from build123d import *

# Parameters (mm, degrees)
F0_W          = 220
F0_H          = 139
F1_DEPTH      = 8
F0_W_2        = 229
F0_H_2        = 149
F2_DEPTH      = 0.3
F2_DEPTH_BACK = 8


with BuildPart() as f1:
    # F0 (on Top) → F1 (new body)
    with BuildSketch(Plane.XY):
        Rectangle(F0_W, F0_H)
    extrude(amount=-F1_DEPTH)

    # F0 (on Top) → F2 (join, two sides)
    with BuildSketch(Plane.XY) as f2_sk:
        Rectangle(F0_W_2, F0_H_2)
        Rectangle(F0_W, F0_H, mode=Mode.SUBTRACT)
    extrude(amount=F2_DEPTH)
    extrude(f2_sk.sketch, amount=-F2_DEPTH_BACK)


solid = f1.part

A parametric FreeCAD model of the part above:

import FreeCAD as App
import Part
import Sketcher

V = App.Vector
Q = App.Units.Quantity


def add_polygon(sketch, points):
    """Adds a closed chain of lines whose ends are joined by coincident constraints."""
    first, n = sketch.GeometryCount, len(points)
    for a, b in zip(points, points[1:] + points[:1]):
        sketch.addGeometry(Part.LineSegment(App.Vector(*a, 0), App.Vector(*b, 0)), False)
    for i in range(n):
        sketch.addConstraint(Sketcher.Constraint("Coincident", first + i, 2, first + (i + 1) % n, 1))

doc = App.newDocument("Part")
params = doc.addObject("Spreadsheet::Sheet", "Params")
for row, (alias, value) in enumerate([
    ("sketch1_width", "220 mm"),
    ("sketch1_height", "139 mm"),
    ("pad1_length", "8 mm"),
    ("sketch2_width", "229 mm"),
    ("sketch2_width2", "220 mm"),
    ("sketch2_height", "149 mm"),
    ("sketch2_height2", "139 mm"),
    ("pad2_length", "0.3 mm"),
    ("pad2_length2", "8 mm"),
], start=1):
    params.set(f"A{row}", alias)
    params.set(f"B{row}", "=" + value)
    params.setAlias(f"B{row}", alias)

body = doc.addObject("PartDesign::Body", "Body")

sketch1 = body.newObject("Sketcher::SketchObject", "Sketch")
sketch1.AttachmentSupport = (doc.getObject("XY_Plane"), [""])
sketch1.MapMode = "FlatFace"
add_polygon(sketch1, [(-110, 69.5), (-110, -69.5), (110, -69.5), (110, 69.5)])
sketch1.addConstraint(Sketcher.Constraint("Vertical", 0))
sketch1.addConstraint(Sketcher.Constraint("Horizontal", 1))
sketch1.addConstraint(Sketcher.Constraint("Vertical", 2))
sketch1.addConstraint(Sketcher.Constraint("Horizontal", 3))
sketch1.addConstraint(Sketcher.Constraint("Symmetric", 0, 2, 2, 2, -1, 1))
sketch1.addConstraint(Sketcher.Constraint("DistanceX", 1, 1, 1, 2, Q("220 mm")))
sketch1.addConstraint(Sketcher.Constraint("DistanceY", 0, 2, 0, 1, Q("139 mm")))
sketch1.setExpression("Constraints[9]", "Params.sketch1_width")
sketch1.setExpression("Constraints[10]", "Params.sketch1_height")
pad1 = body.newObject("PartDesign::Pad", "Pad")
pad1.Profile = sketch1
pad1.setExpression("Length", "Params.pad1_length")
pad1.Reversed = True

sketch2 = body.newObject("Sketcher::SketchObject", "Sketch001")
sketch2.AttachmentSupport = (doc.getObject("XY_Plane"), [""])
sketch2.MapMode = "FlatFace"
add_polygon(sketch2, [(-114.5, 74.5), (-114.5, -74.5), (114.5, -74.5), (114.5, 74.5)])
add_polygon(sketch2, [(110, -69.5), (-110, -69.5), (-110, 69.5), (110, 69.5)])
sketch2.addConstraint(Sketcher.Constraint("Vertical", 0))
sketch2.addConstraint(Sketcher.Constraint("Horizontal", 1))
sketch2.addConstraint(Sketcher.Constraint("Vertical", 2))
sketch2.addConstraint(Sketcher.Constraint("Horizontal", 3))
sketch2.addConstraint(Sketcher.Constraint("Horizontal", 4))
sketch2.addConstraint(Sketcher.Constraint("Vertical", 5))
sketch2.addConstraint(Sketcher.Constraint("Horizontal", 6))
sketch2.addConstraint(Sketcher.Constraint("Vertical", 7))
sketch2.addConstraint(Sketcher.Constraint("Symmetric", 0, 2, 2, 2, -1, 1))
sketch2.addConstraint(Sketcher.Constraint("Symmetric", 4, 2, 6, 2, -1, 1))
sketch2.addConstraint(Sketcher.Constraint("DistanceX", 1, 1, 1, 2, Q("229 mm")))
sketch2.addConstraint(Sketcher.Constraint("DistanceX", 4, 2, 4, 1, Q("220 mm")))
sketch2.addConstraint(Sketcher.Constraint("DistanceY", 0, 2, 0, 1, Q("149 mm")))
sketch2.addConstraint(Sketcher.Constraint("DistanceY", 5, 1, 5, 2, Q("139 mm")))
sketch2.setExpression("Constraints[18]", "Params.sketch2_width")
sketch2.setExpression("Constraints[19]", "Params.sketch2_width2")
sketch2.setExpression("Constraints[20]", "Params.sketch2_height")
sketch2.setExpression("Constraints[21]", "Params.sketch2_height2")
pad2 = body.newObject("PartDesign::Pad", "Pad001")
pad2.Profile = sketch2
pad2.Type = "TwoLengths"
pad2.setExpression("Length", "Params.pad2_length")
pad2.setExpression("Length2", "Params.pad2_length2")

doc.recompute()
